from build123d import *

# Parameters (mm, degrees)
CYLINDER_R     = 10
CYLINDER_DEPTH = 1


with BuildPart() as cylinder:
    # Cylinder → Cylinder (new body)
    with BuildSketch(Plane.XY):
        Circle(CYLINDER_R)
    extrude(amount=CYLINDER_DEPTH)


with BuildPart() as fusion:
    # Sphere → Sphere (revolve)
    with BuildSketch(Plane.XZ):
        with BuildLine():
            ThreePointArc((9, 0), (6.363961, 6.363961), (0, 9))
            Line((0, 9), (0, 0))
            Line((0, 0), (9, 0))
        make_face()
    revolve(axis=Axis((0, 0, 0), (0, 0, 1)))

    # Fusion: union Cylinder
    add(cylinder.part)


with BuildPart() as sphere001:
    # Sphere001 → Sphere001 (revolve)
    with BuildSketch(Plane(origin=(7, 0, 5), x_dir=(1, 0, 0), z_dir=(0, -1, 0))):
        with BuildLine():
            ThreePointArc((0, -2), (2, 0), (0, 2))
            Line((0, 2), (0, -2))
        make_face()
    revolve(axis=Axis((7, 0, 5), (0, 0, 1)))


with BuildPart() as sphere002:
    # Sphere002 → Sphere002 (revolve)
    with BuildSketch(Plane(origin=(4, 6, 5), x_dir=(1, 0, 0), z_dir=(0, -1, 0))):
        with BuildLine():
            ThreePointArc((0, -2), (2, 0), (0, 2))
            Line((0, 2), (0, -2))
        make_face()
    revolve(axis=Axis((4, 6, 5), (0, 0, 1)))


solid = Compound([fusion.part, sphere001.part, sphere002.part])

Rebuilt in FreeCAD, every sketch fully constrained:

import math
import FreeCAD as App
import Part
import Sketcher

doc = App.newDocument("Part")
params = doc.addObject("Spreadsheet::Sheet", "Params")
for row, (alias, value) in enumerate([
    ("sketch1_diameter", "20 mm"),
    ("pad1_length", "1 mm"),
    ("sketch2_radius", "9 mm"),
    ("revolution_angle", "360 deg"),
    ("sketch3_radius", "2 mm"),
    ("revolution2_angle", "360 deg"),
    ("sketch4_radius", "2 mm"),
    ("revolution3_angle", "360 deg"),
], start=1):
    params.set(f"A{row}", alias)
    params.set(f"B{row}", "=" + value)
    params.setAlias(f"B{row}", alias)

body = doc.addObject("PartDesign::Body", "Body")

sketch1 = body.newObject("Sketcher::SketchObject", "Sketch")
sketch1.AttachmentSupport = (doc.getObject("XY_Plane"), [""])
sketch1.MapMode = "FlatFace"
sketch1.addGeometry(Part.Circle(App.Vector(0, 0, 0), App.Vector(0, 0, 1), 10), False)
sketch1.addConstraint(Sketcher.Constraint("Coincident", 0, 3, -1, 1))
sketch1.addConstraint(Sketcher.Constraint("Diameter", 0, 20.0))
sketch1.setExpression("Constraints[1]", "Params.sketch1_diameter")
pad1 = body.newObject("PartDesign::Pad", "Pad")
pad1.Profile = sketch1
pad1.setExpression("Length", "Params.pad1_length")
body2 = doc.addObject("PartDesign::Body", "Body001")

sketch2 = body2.newObject("Sketcher::SketchObject", "Sketch001")
sketch2.AttachmentSupport = (doc.getObject("XZ_Plane001"), [""])
sketch2.MapMode = "FlatFace"
sketch2.addGeometry(Part.ArcOfCircle(Part.Circle(App.Vector(0, 0, 0), App.Vector(0, 0, 1), 9), math.radians(0.000001), math.radians(89.999999)), False)
sketch2.addGeometry(Part.LineSegment(App.Vector(0, 9, 0), App.Vector(0, 0, 0)), False)
sketch2.addGeometry(Part.LineSegment(App.Vector(0, 0, 0), App.Vector(9, 0, 0)), False)
sketch2.addConstraint(Sketcher.Constraint("Coincident", 0, 2, 1, 1))
sketch2.addConstraint(Sketcher.Constraint("Coincident", 1, 2, 2, 1))
sketch2.addConstraint(Sketcher.Constraint("Coincident", 2, 2, 0, 1))
sketch2.addConstraint(Sketcher.Constraint("Vertical", 1))
sketch2.addConstraint(Sketcher.Constraint("Horizontal", 2))
sketch2.addConstraint(Sketcher.Constraint("Coincident", 0, 3, -1, 1))
sketch2.addConstraint(Sketcher.Constraint("Coincident", 1, 2, -1, 1))
sketch2.addConstraint(Sketcher.Constraint("Radius", 0, 9.0))
sketch2.setExpression("Constraints[7]", "Params.sketch2_radius")
revolution = body2.newObject("PartDesign::Revolution", "Revolution")
revolution.Profile = sketch2
revolution.ReferenceAxis = (sketch2, ["V_Axis"])
revolution.setExpression("Angle", "Params.revolution_angle")
doc.recompute()

boolean = body2.newObject("PartDesign::Boolean", "Boolean")
boolean.Type = "Fuse"
boolean.addObjects([body])
body3 = doc.addObject("PartDesign::Body", "Body002")

sketch3 = body3.newObject("Sketcher::SketchObject", "Sketch002")
sketch3.AttachmentSupport = (doc.getObject("XZ_Plane002"), [""])
sketch3.MapMode = "FlatFace"
sketch3.addGeometry(Part.ArcOfCircle(Part.Circle(App.Vector(7, 5, 0), App.Vector(0, 0, 1), 2), math.radians(-90), math.radians(90)), False)
sketch3.addGeometry(Part.LineSegment(App.Vector(7, 7, 0), App.Vector(7, 3, 0)), False)
sketch3.addGeometry(Part.LineSegment(App.Vector(7, 3, 0), App.Vector(7, 7, 0)), True)
sketch3.addConstraint(Sketcher.Constraint("Coincident", 0, 1, 1, 2))
sketch3.addConstraint(Sketcher.Constraint("Coincident", 1, 1, 0, 2))
sketch3.addConstraint(Sketcher.Constraint("Vertical", 1))
sketch3.addConstraint(Sketcher.Constraint("Vertical", 2))
sketch3.addConstraint(Sketcher.Constraint("Coincident", 2, 1, 0, 1))
sketch3.addConstraint(Sketcher.Constraint("Equal", 1, 2))
sketch3.addConstraint(Sketcher.Constraint("Radius", 0, 2.0))
sketch3.addConstraint(Sketcher.Constraint("DistanceX", -1, 1, 0, 3, 7.0))
sketch3.addConstraint(Sketcher.Constraint("DistanceY", -1, 1, 0, 3, 5.0))
sketch3.addConstraint(Sketcher.Constraint("DistanceX", -1, 1, 0, 1, 7.0))
sketch3.setExpression("Constraints[6]", "Params.sketch3_radius")
revolution2 = body3.newObject("PartDesign::Revolution", "Revolution001")
revolution2.Profile = sketch3
revolution2.ReferenceAxis = (sketch3, ["Axis0"])
revolution2.setExpression("Angle", "Params.revolution2_angle")
body4 = doc.addObject("PartDesign::Body", "Body003")

sketch4 = body4.newObject("Sketcher::SketchObject", "Sketch003")
sketch4.AttachmentSupport = (doc.getObject("XZ_Plane003"), [""])
sketch4.MapMode = "FlatFace"
sketch4.AttachmentOffset = App.Placement(App.Vector(0, 0, -6), App.Rotation())
sketch4.addGeometry(Part.ArcOfCircle(Part.Circle(App.Vector(4, 5, 0), App.Vector(0, 0, 1), 2), math.radians(-90), math.radians(90)), False)
sketch4.addGeometry(Part.LineSegment(App.Vector(4, 7, 0), App.Vector(4, 3, 0)), False)
sketch4.addGeometry(Part.LineSegment(App.Vector(4, 3, 0), App.Vector(4, 7, 0)), True)
sketch4.addConstraint(Sketcher.Constraint("Coincident", 0, 1, 1, 2))
sketch4.addConstraint(Sketcher.Constraint("Coincident", 1, 1, 0, 2))
sketch4.addConstraint(Sketcher.Constraint("Vertical", 1))
sketch4.addConstraint(Sketcher.Constraint("Vertical", 2))
sketch4.addConstraint(Sketcher.Constraint("Coincident", 2, 1, 0, 1))
sketch4.addConstraint(Sketcher.Constraint("Equal", 1, 2))
sketch4.addConstraint(Sketcher.Constraint("Radius", 0, 2.0))
sketch4.addConstraint(Sketcher.Constraint("DistanceX", -1, 1, 0, 3, 4.0))
sketch4.addConstraint(Sketcher.Constraint("DistanceY", -1, 1, 0, 3, 5.0))
sketch4.addConstraint(Sketcher.Constraint("DistanceX", -1, 1, 0, 1, 4.0))
sketch4.setExpression("Constraints[6]", "Params.sketch4_radius")
revolution3 = body4.newObject("PartDesign::Revolution", "Revolution002")
revolution3.Profile = sketch4
revolution3.ReferenceAxis = (sketch4, ["Axis0"])
revolution3.setExpression("Angle", "Params.revolution3_angle")

doc.recompute()
